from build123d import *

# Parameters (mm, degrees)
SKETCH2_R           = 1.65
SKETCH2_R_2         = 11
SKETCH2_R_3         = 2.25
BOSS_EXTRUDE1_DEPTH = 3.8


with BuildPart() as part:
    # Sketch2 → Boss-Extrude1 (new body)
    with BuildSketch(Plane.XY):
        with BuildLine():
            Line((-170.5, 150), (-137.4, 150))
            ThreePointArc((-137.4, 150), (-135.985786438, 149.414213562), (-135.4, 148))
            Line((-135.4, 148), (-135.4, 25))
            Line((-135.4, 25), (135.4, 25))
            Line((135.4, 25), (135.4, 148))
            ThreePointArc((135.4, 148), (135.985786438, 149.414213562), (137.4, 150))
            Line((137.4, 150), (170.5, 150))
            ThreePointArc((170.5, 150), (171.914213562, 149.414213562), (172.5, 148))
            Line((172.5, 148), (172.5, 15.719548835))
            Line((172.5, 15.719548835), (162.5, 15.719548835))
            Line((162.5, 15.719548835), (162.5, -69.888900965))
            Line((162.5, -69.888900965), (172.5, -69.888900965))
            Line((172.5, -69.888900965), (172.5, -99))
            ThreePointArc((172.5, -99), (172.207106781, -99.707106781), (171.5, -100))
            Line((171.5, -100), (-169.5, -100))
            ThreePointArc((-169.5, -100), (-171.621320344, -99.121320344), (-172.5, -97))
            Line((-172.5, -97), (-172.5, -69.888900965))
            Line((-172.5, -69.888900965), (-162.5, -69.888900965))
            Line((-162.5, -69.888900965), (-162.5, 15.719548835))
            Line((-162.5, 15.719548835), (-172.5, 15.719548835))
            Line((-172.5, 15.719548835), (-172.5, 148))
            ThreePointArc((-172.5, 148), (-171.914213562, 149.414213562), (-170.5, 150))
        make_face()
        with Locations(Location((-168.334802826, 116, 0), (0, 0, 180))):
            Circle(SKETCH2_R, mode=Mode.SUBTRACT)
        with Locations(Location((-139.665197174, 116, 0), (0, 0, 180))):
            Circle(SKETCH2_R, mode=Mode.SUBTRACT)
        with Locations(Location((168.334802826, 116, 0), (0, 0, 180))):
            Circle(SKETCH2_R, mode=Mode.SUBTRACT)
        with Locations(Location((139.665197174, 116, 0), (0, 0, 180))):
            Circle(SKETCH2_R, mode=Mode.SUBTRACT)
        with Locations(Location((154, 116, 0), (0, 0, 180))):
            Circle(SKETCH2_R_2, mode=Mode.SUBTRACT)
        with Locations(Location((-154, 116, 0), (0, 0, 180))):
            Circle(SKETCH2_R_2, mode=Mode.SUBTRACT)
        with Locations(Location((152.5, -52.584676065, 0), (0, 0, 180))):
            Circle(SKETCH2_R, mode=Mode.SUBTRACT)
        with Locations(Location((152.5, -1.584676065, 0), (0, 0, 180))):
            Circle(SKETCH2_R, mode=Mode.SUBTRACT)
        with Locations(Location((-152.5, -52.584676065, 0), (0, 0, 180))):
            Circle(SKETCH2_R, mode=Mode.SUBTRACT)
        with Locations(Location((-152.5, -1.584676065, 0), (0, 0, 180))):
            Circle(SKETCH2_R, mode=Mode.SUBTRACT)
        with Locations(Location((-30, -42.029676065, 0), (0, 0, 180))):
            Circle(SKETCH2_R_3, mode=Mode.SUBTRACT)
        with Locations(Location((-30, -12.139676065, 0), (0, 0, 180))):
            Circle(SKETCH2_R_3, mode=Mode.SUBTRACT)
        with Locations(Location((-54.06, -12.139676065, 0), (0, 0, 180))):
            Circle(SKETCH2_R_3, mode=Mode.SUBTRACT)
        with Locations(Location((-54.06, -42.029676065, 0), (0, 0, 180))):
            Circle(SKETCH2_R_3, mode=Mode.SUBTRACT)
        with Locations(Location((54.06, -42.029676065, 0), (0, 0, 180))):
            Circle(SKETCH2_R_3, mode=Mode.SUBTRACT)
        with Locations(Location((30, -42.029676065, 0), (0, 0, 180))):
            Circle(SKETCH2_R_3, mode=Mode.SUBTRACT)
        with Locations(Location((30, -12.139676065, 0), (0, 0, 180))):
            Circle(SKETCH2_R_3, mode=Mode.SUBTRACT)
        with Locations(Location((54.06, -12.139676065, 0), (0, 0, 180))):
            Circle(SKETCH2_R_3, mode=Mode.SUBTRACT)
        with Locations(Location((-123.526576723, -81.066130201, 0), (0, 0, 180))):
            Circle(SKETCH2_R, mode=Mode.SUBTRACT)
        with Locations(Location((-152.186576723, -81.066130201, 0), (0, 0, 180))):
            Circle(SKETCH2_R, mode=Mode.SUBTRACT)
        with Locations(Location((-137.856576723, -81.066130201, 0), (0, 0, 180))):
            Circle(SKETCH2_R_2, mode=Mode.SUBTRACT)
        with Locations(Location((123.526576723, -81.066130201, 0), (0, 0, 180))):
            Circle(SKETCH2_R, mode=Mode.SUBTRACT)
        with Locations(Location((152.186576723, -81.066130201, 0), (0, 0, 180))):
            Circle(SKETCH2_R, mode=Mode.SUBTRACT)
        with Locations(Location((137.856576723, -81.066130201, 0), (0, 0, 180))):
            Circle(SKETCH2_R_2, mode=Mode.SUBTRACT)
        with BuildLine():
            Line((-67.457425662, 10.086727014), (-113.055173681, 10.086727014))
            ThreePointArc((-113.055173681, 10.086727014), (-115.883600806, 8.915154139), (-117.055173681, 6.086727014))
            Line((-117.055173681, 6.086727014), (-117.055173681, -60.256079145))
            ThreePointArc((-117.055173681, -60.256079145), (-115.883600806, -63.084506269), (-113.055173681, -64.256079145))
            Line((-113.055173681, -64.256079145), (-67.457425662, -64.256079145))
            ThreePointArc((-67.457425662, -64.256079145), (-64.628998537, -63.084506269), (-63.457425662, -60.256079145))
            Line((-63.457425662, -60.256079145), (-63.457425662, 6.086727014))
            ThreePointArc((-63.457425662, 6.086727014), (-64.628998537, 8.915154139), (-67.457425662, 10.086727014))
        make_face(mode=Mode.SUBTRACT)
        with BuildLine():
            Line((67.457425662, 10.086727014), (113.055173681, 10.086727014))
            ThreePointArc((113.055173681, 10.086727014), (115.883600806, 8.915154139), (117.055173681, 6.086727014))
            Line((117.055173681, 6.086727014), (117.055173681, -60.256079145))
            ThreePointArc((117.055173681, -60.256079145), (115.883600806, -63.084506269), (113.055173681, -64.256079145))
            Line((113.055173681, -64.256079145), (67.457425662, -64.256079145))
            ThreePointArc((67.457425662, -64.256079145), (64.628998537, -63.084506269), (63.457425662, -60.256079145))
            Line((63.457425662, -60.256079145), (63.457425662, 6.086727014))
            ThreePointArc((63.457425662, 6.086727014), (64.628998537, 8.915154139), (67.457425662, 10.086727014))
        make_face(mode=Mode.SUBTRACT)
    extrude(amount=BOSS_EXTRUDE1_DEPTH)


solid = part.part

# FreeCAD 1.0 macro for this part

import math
import FreeCAD as App
import Part
import Sketcher

doc = App.newDocument("Part")
body = doc.addObject("PartDesign::Body", "Body")

# Sketch on XY plane
sketch1 = body.newObject("Sketcher::SketchObject", "Sketch")
sketch1.AttachmentSupport = (doc.getObject("XY_Plane"), [""])
sketch1.MapMode = "FlatFace"
sketch1.addGeometry([
    Part.LineSegment(App.Vector(-137.4, 150, 0), App.Vector(-170.5, 150, 0)),  # 0
    Part.ArcOfCircle(Part.Circle(App.Vector(-170.5, 148, 0), App.Vector(0, 0, 1), 2), math.radians(90), math.radians(180)),  # 1
    Part.LineSegment(App.Vector(-172.5, 148, 0), App.Vector(-172.5, 15.719549, 0)),  # 2
    Part.LineSegment(App.Vector(-172.5, 15.719549, 0), App.Vector(-162.5, 15.719549, 0)),  # 3
    Part.LineSegment(App.Vector(-162.5, 15.719549, 0), App.Vector(-162.5, -69.888901, 0)),  # 4
    Part.LineSegment(App.Vector(-162.5, -69.888901, 0), App.Vector(-172.5, -69.888901, 0)),  # 5
    Part.LineSegment(App.Vector(-172.5, -69.888901, 0), App.Vector(-172.5, -97, 0)),  # 6
    Part.ArcOfCircle(Part.Circle(App.Vector(-169.5, -97, 0), App.Vector(0, 0, 1), 3), math.radians(180), math.radians(270)),  # 7
    Part.LineSegment(App.Vector(-169.5, -100, 0), App.Vector(171.5, -100, 0)),  # 8
    Part.ArcOfCircle(Part.Circle(App.Vector(171.5, -99, 0), App.Vector(0, 0, 1), 1), math.radians(-90), math.radians(0)),  # 9
    Part.LineSegment(App.Vector(172.5, -99, 0), App.Vector(172.5, -69.888901, 0)),  # 10
    Part.LineSegment(App.Vector(172.5, -69.888901, 0), App.Vector(162.5, -69.888901, 0)),  # 11
    Part.LineSegment(App.Vector(162.5, -69.888901, 0), App.Vector(162.5, 15.719549, 0)),  # 12
    Part.LineSegment(App.Vector(162.5, 15.719549, 0), App.Vector(172.5, 15.719549, 0)),  # 13
    Part.LineSegment(App.Vector(172.5, 15.719549, 0), App.Vector(172.5, 148, 0)),  # 14
    Part.ArcOfCircle(Part.Circle(App.Vector(170.5, 148, 0), App.Vector(0, 0, 1), 2), math.radians(0), math.radians(90)),  # 15
    Part.LineSegment(App.Vector(170.5, 150, 0), App.Vector(137.4, 150, 0)),  # 16
    Part.ArcOfCircle(Part.Circle(App.Vector(137.4, 148, 0), App.Vector(0, 0, 1), 2), math.radians(90), math.radians(180)),  # 17
    Part.LineSegment(App.Vector(135.4, 148, 0), App.Vector(135.4, 25, 0)),  # 18
    Part.LineSegment(App.Vector(135.4, 25, 0), App.Vector(-135.4, 25, 0)),  # 19
    Part.LineSegment(App.Vector(-135.4, 25, 0), App.Vector(-135.4, 148, 0)),  # 20
    Part.ArcOfCircle(Part.Circle(App.Vector(-137.4, 148, 0), App.Vector(0, 0, 1), 2), math.radians(0), math.radians(90)),  # 21
    Part.Circle(App.Vector(152.186577, -81.06613, 0), App.Vector(0, 0, 1), 1.65),  # 22
    Part.Circle(App.Vector(137.856577, -81.06613, 0), App.Vector(0, 0, 1), 11),  # 23
    Part.Circle(App.Vector(123.526577, -81.06613, 0), App.Vector(0, 0, 1), 1.65),  # 24
    Part.Circle(App.Vector(152.5, -52.584676, 0), App.Vector(0, 0, 1), 1.65),  # 25
    Part.Circle(App.Vector(54.06, -42.029676, 0), App.Vector(0, 0, 1), 2.25),  # 26
    Part.Circle(App.Vector(30, -42.029676, 0), App.Vector(0, 0, 1), 2.25),  # 27
    Part.LineSegment(App.Vector(67.457426, 10.086727, 0), App.Vector(113.055174, 10.086727, 0)),  # 28
    Part.ArcOfCircle(Part.Circle(App.Vector(113.055174, 6.086727, 0), App.Vector(0, 0, 1), 4), math.radians(0), math.radians(90)),  # 29
    Part.LineSegment(App.Vector(117.055174, 6.086727, 0), App.Vector(117.055174, -60.256079, 0)),  # 30
    Part.ArcOfCircle(Part.Circle(App.Vector(113.055174, -60.256079, 0), App.Vector(0, 0, 1), 4), math.radians(-90), math.radians(0)),  # 31
    Part.LineSegment(App.Vector(113.055174, -64.256079, 0), App.Vector(67.457426, -64.256079, 0)),  # 32
    Part.ArcOfCircle(Part.Circle(App.Vector(67.457426, -60.256079, 0), App.Vector(0, 0, 1), 4), math.radians(-180), math.radians(-90)),  # 33
    Part.LineSegment(App.Vector(63.457426, -60.256079, 0), App.Vector(63.457426, 6.086727, 0)),  # 34
    Part.ArcOfCircle(Part.Circle(App.Vector(67.457426, 6.086727, 0), App.Vector(0, 0, 1), 4), math.radians(90), math.radians(180)),  # 35
    Part.Circle(App.Vector(152.5, -1.584676, 0), App.Vector(0, 0, 1), 1.65),  # 36
    Part.Circle(App.Vector(54.06, -12.139676, 0), App.Vector(0, 0, 1), 2.25),  # 37
    Part.Circle(App.Vector(30, -12.139676, 0), App.Vector(0, 0, 1), 2.25),  # 38
    Part.Circle(App.Vector(-30, -42.029676, 0), App.Vector(0, 0, 1), 2.25),  # 39
    Part.Circle(App.Vector(-54.06, -42.029676, 0), App.Vector(0, 0, 1), 2.25),  # 40
    Part.Circle(App.Vector(-123.526577, -81.06613, 0), App.Vector(0, 0, 1), 1.65),  # 41
    Part.Circle(App.Vector(-137.856577, -81.06613, 0), App.Vector(0, 0, 1), 11),  # 42
    Part.Circle(App.Vector(-152.186577, -81.06613, 0), App.Vector(0, 0, 1), 1.65),  # 43
    Part.Circle(App.Vector(-152.5, -52.584676, 0), App.Vector(0, 0, 1), 1.65),  # 44
    Part.Circle(App.Vector(-30, -12.139676, 0), App.Vector(0, 0, 1), 2.25),  # 45
    Part.Circle(App.Vector(-54.06, -12.139676, 0), App.Vector(0, 0, 1), 2.25),  # 46
    Part.ArcOfCircle(Part.Circle(App.Vector(-67.457426, 6.086727, 0), App.Vector(0, 0, 1), 4), math.radians(0), math.radians(90)),  # 47
    Part.LineSegment(App.Vector(-63.457426, 6.086727, 0), App.Vector(-63.457426, -60.256079, 0)),  # 48
    Part.ArcOfCircle(Part.Circle(App.Vector(-67.457426, -60.256079, 0), App.Vector(0, 0, 1), 4), math.radians(-90), math.radians(0)),  # 49
    Part.LineSegment(App.Vector(-67.457426, -64.256079, 0), App.Vector(-113.055174, -64.256079, 0)),  # 50
    Part.ArcOfCircle(Part.Circle(App.Vector(-113.055174, -60.256079, 0), App.Vector(0, 0, 1), 4), math.radians(-180), math.radians(-90)),  # 51
    Part.LineSegment(App.Vector(-117.055174, -60.256079, 0), App.Vector(-117.055174, 6.086727, 0)),  # 52
    Part.ArcOfCircle(Part.Circle(App.Vector(-113.055174, 6.086727, 0), App.Vector(0, 0, 1), 4), math.radians(90), math.radians(180)),  # 53
    Part.LineSegment(App.Vector(-113.055174, 10.086727, 0), App.Vector(-67.457426, 10.086727, 0)),  # 54
    Part.Circle(App.Vector(-152.5, -1.584676, 0), App.Vector(0, 0, 1), 1.65),  # 55
    Part.Circle(App.Vector(168.334803, 116, 0), App.Vector(0, 0, 1), 1.65),  # 56
    Part.Circle(App.Vector(154, 116, 0), App.Vector(0, 0, 1), 11),  # 57
    Part.Circle(App.Vector(139.665197, 116, 0), App.Vector(0, 0, 1), 1.65),  # 58
    Part.Circle(App.Vector(-139.665197, 116, 0), App.Vector(0, 0, 1), 1.65),  # 59
    Part.Circle(App.Vector(-154, 116, 0), App.Vector(0, 0, 1), 11),  # 60
    Part.Circle(App.Vector(-168.334803, 116, 0), App.Vector(0, 0, 1), 1.65),  # 61
], False)
sketch1.addConstraint([
    Sketcher.Constraint("Tangent", 0, 2, 1, 1),
    Sketcher.Constraint("Tangent", 1, 2, 2, 1),
    Sketcher.Constraint("Coincident", 2, 2, 3, 1),
    Sketcher.Constraint("Coincident", 3, 2, 4, 1),
    Sketcher.Constraint("Coincident", 4, 2, 5, 1),
    Sketcher.Constraint("Coincident", 5, 2, 6, 1),
    Sketcher.Constraint("Tangent", 6, 2, 7, 1),
    Sketcher.Constraint("Tangent", 7, 2, 8, 1),
    Sketcher.Constraint("Tangent", 8, 2, 9, 1),
    Sketcher.Constraint("Tangent", 9, 2, 10, 1),
    Sketcher.Constraint("Coincident", 10, 2, 11, 1),
    Sketcher.Constraint("Coincident", 11, 2, 12, 1),
    Sketcher.Constraint("Coincident", 12, 2, 13, 1),
    Sketcher.Constraint("Coincident", 13, 2, 14, 1),
    Sketcher.Constraint("Tangent", 14, 2, 15, 1),
    Sketcher.Constraint("Tangent", 15, 2, 16, 1),
    Sketcher.Constraint("Tangent", 16, 2, 17, 1),
    Sketcher.Constraint("Tangent", 17, 2, 18, 1),
    Sketcher.Constraint("Coincident", 18, 2, 19, 1),
    Sketcher.Constraint("Coincident", 19, 2, 20, 1),
    Sketcher.Constraint("Tangent", 20, 2, 21, 1),
    Sketcher.Constraint("Tangent", 21, 2, 0, 1),
    Sketcher.Constraint("Tangent", 28, 2, 29, 2),
    Sketcher.Constraint("Tangent", 29, 1, 30, 1),
    Sketcher.Constraint("Tangent", 30, 2, 31, 2),
    Sketcher.Constraint("Tangent", 31, 1, 32, 1),
    Sketcher.Constraint("Tangent", 32, 2, 33, 2),
    Sketcher.Constraint("Tangent", 33, 1, 34, 1),
    Sketcher.Constraint("Tangent", 34, 2, 35, 2),
    Sketcher.Constraint("Tangent", 35, 1, 28, 1),
    Sketcher.Constraint("Tangent", 47, 1, 48, 1),
    Sketcher.Constraint("Tangent", 48, 2, 49, 2),
    Sketcher.Constraint("Tangent", 49, 1, 50, 1),
    Sketcher.Constraint("Tangent", 50, 2, 51, 2),
    Sketcher.Constraint("Tangent", 51, 1, 52, 1),
    Sketcher.Constraint("Tangent", 52, 2, 53, 2),
    Sketcher.Constraint("Tangent", 53, 1, 54, 1),
    Sketcher.Constraint("Tangent", 54, 2, 47, 2),
    Sketcher.Constraint("Horizontal", 0),
    Sketcher.Constraint("Vertical", 2),
    Sketcher.Constraint("Horizontal", 3),
    Sketcher.Constraint("Vertical", 4),
    Sketcher.Constraint("Horizontal", 5),
    Sketcher.Constraint("Vertical", 6),
    Sketcher.Constraint("Horizontal", 8),
    Sketcher.Constraint("Vertical", 10),
    Sketcher.Constraint("Horizontal", 11),
    Sketcher.Constraint("Vertical", 12),
    Sketcher.Constraint("Horizontal", 13),
    Sketcher.Constraint("Vertical", 14),
    Sketcher.Constraint("Horizontal", 16),
    Sketcher.Constraint("Vertical", 18),
    Sketcher.Constraint("Horizontal", 19),
    Sketcher.Constraint("Vertical", 20),
    Sketcher.Constraint("Horizontal", 28),
    Sketcher.Constraint("Vertical", 30),
    Sketcher.Constraint("Horizontal", 32),
    Sketcher.Constraint("Vertical", 34),
    Sketcher.Constraint("Vertical", 48),
    Sketcher.Constraint("Horizontal", 50),
    Sketcher.Constraint("Vertical", 52),
    Sketcher.Constraint("Horizontal", 54),
    Sketcher.Constraint("Equal", 1, 15),
    Sketcher.Constraint("Equal", 15, 17),
    Sketcher.Constraint("Equal", 17, 21),
    Sketcher.Constraint("Equal", 22, 24),
    Sketcher.Constraint("Equal", 24, 25),
    Sketcher.Constraint("Equal", 26, 27),
    Sketcher.Constraint("Equal", 29, 31),
    Sketcher.Constraint("Equal", 31, 33),
    Sketcher.Constraint("Equal", 33, 35),
    Sketcher.Constraint("Equal", 25, 36),
    Sketcher.Constraint("Equal", 27, 37),
    Sketcher.Constraint("Equal", 37, 38),
    Sketcher.Constraint("Equal", 38, 39),
    Sketcher.Constraint("Equal", 39, 40),
    Sketcher.Constraint("Equal", 36, 41),
    Sketcher.Constraint("Equal", 23, 42),
    Sketcher.Constraint("Equal", 41, 43),
    Sketcher.Constraint("Equal", 43, 44),
    Sketcher.Constraint("Equal", 40, 45),
    Sketcher.Constraint("Equal", 45, 46),
    Sketcher.Constraint("Equal", 35, 47),
    Sketcher.Constraint("Equal", 47, 49),
    Sketcher.Constraint("Equal", 49, 51),
    Sketcher.Constraint("Equal", 51, 53),
    Sketcher.Constraint("Equal", 44, 55),
    Sketcher.Constraint("Equal", 55, 56),
    Sketcher.Constraint("Equal", 42, 57),
    Sketcher.Constraint("Equal", 56, 58),
    Sketcher.Constraint("Equal", 58, 59),
    Sketcher.Constraint("Equal", 57, 60),
    Sketcher.Constraint("Equal", 59, 61),
    Sketcher.Constraint("Symmetric", 1, 3, 15, 3, -2),
    Sketcher.Constraint("Symmetric", 27, 3, 39, 3, -2),
    Sketcher.Constraint("Symmetric", 26, 3, 40, 3, -2),
    Sketcher.Constraint("Symmetric", 24, 3, 41, 3, -2),
    Sketcher.Constraint("Symmetric", 23, 3, 42, 3, -2),
    Sketcher.Constraint("Symmetric", 22, 3, 43, 3, -2),
    Sketcher.Constraint("Symmetric", 25, 3, 44, 3, -2),
    Sketcher.Constraint("Symmetric", 38, 3, 45, 3, -2),
    Sketcher.Constraint("Symmetric", 37, 3, 46, 3, -2),
    Sketcher.Constraint("Symmetric", 35, 3, 47, 3, -2),
    Sketcher.Constraint("Symmetric", 31, 3, 51, 3, -2),
    Sketcher.Constraint("Symmetric", 36, 3, 55, 3, -2),
    Sketcher.Constraint("Symmetric", 58, 3, 59, 3, -2),
    Sketcher.Constraint("Symmetric", 57, 3, 60, 3, -2),
    Sketcher.Constraint("Symmetric", 56, 3, 61, 3, -2),
    Sketcher.Constraint("Symmetric", 5, 2, 10, 2, -2),
    Sketcher.Constraint("Symmetric", 3, 2, 12, 2, -2),
    Sketcher.Constraint("Horizontal", 22, 3, 23, 3),
    Sketcher.Constraint("Horizontal", 23, 3, 24, 3),
    Sketcher.Constraint("Horizontal", 26, 3, 27, 3),
    Sketcher.Constraint("Horizontal", 37, 3, 38, 3),
    Sketcher.Constraint("Horizontal", 56, 3, 57, 3),
    Sketcher.Constraint("Horizontal", 57, 3, 58, 3),
    Sketcher.Constraint("Vertical", 25, 3, 36, 3),
    Sketcher.Constraint("Vertical", 26, 3, 37, 3),
    Sketcher.Constraint("Vertical", 27, 3, 38, 3),
    Sketcher.Constraint("Vertical", 2, 2, 5, 2),
    Sketcher.Constraint("Equal", 0, 16),
    Sketcher.Constraint("Diameter", 23, 22.0),
    Sketcher.Constraint("Radius", 1, 2.0),
    Sketcher.Constraint("Radius", 7, 3.0),
    Sketcher.Constraint("Radius", 9, 1.0),
    Sketcher.Constraint("Radius", 29, 4.0),
    Sketcher.Constraint("Diameter", 22, 3.3),
    Sketcher.Constraint("Diameter", 26, 4.5),
    Sketcher.Constraint("DistanceX", 3, 1, 3, 2, 10.0),
    Sketcher.Constraint("DistanceX", 8, 1, 8, 2, 341.0),
    Sketcher.Constraint("DistanceY", 18, 2, 18, 1, 123.0),
    Sketcher.Constraint("DistanceX", 0, 2, 0, 1, 33.1),
    Sketcher.Constraint("DistanceY", -1, 1, 1, 3, 148.0),
    Sketcher.Constraint("DistanceY", 7, 3, -1, 1, 97.0),
    Sketcher.Constraint("DistanceX", -1, 1, 27, 3, 30.0),
    Sketcher.Constraint("DistanceY", -1, 1, 56, 3, 116.0),
    Sketcher.Constraint("DistanceX", -1, 1, 57, 3, 154.0),
    Sketcher.Constraint("DistanceX", -1, 1, 25, 3, 152.5),
    Sketcher.Constraint("DistanceX", -1, 1, 26, 3, 54.06),
    Sketcher.Constraint("DistanceY", 6, 2, 6, 1, 27.111099),
    Sketcher.Constraint("DistanceX", 28, 1, 28, 2, 45.597748),
    Sketcher.Constraint("DistanceY", 2, 2, 2, 1, 132.280451),
    Sketcher.Constraint("DistanceY", 30, 2, 30, 1, 66.342806),
    Sketcher.Constraint("DistanceY", 22, 3, -1, 1, 81.06613),
    Sketcher.Constraint("DistanceY", 31, 3, -1, 1, 60.256079),
    Sketcher.Constraint("DistanceX", -1, 1, 22, 3, 152.186577),
    Sketcher.Constraint("DistanceX", -1, 1, 23, 3, 137.856577),
    Sketcher.Constraint("DistanceX", -1, 1, 24, 3, 123.526577),
    Sketcher.Constraint("DistanceY", 25, 3, -1, 1, 52.584676),
    Sketcher.Constraint("DistanceY", 26, 3, -1, 1, 42.029676),
    Sketcher.Constraint("DistanceX", -1, 1, 29, 3, 113.055174),
    Sketcher.Constraint("DistanceY", 36, 3, -1, 1, 1.584676),
    Sketcher.Constraint("DistanceY", 37, 3, -1, 1, 12.139676),
    Sketcher.Constraint("DistanceX", -1, 1, 56, 3, 168.334803),
    Sketcher.Constraint("DistanceX", -1, 1, 58, 3, 139.665197),
])
pad1 = body.newObject("PartDesign::Pad", "Pad")
pad1.Profile = sketch1
pad1.Length = 3.8

doc.recompute()
